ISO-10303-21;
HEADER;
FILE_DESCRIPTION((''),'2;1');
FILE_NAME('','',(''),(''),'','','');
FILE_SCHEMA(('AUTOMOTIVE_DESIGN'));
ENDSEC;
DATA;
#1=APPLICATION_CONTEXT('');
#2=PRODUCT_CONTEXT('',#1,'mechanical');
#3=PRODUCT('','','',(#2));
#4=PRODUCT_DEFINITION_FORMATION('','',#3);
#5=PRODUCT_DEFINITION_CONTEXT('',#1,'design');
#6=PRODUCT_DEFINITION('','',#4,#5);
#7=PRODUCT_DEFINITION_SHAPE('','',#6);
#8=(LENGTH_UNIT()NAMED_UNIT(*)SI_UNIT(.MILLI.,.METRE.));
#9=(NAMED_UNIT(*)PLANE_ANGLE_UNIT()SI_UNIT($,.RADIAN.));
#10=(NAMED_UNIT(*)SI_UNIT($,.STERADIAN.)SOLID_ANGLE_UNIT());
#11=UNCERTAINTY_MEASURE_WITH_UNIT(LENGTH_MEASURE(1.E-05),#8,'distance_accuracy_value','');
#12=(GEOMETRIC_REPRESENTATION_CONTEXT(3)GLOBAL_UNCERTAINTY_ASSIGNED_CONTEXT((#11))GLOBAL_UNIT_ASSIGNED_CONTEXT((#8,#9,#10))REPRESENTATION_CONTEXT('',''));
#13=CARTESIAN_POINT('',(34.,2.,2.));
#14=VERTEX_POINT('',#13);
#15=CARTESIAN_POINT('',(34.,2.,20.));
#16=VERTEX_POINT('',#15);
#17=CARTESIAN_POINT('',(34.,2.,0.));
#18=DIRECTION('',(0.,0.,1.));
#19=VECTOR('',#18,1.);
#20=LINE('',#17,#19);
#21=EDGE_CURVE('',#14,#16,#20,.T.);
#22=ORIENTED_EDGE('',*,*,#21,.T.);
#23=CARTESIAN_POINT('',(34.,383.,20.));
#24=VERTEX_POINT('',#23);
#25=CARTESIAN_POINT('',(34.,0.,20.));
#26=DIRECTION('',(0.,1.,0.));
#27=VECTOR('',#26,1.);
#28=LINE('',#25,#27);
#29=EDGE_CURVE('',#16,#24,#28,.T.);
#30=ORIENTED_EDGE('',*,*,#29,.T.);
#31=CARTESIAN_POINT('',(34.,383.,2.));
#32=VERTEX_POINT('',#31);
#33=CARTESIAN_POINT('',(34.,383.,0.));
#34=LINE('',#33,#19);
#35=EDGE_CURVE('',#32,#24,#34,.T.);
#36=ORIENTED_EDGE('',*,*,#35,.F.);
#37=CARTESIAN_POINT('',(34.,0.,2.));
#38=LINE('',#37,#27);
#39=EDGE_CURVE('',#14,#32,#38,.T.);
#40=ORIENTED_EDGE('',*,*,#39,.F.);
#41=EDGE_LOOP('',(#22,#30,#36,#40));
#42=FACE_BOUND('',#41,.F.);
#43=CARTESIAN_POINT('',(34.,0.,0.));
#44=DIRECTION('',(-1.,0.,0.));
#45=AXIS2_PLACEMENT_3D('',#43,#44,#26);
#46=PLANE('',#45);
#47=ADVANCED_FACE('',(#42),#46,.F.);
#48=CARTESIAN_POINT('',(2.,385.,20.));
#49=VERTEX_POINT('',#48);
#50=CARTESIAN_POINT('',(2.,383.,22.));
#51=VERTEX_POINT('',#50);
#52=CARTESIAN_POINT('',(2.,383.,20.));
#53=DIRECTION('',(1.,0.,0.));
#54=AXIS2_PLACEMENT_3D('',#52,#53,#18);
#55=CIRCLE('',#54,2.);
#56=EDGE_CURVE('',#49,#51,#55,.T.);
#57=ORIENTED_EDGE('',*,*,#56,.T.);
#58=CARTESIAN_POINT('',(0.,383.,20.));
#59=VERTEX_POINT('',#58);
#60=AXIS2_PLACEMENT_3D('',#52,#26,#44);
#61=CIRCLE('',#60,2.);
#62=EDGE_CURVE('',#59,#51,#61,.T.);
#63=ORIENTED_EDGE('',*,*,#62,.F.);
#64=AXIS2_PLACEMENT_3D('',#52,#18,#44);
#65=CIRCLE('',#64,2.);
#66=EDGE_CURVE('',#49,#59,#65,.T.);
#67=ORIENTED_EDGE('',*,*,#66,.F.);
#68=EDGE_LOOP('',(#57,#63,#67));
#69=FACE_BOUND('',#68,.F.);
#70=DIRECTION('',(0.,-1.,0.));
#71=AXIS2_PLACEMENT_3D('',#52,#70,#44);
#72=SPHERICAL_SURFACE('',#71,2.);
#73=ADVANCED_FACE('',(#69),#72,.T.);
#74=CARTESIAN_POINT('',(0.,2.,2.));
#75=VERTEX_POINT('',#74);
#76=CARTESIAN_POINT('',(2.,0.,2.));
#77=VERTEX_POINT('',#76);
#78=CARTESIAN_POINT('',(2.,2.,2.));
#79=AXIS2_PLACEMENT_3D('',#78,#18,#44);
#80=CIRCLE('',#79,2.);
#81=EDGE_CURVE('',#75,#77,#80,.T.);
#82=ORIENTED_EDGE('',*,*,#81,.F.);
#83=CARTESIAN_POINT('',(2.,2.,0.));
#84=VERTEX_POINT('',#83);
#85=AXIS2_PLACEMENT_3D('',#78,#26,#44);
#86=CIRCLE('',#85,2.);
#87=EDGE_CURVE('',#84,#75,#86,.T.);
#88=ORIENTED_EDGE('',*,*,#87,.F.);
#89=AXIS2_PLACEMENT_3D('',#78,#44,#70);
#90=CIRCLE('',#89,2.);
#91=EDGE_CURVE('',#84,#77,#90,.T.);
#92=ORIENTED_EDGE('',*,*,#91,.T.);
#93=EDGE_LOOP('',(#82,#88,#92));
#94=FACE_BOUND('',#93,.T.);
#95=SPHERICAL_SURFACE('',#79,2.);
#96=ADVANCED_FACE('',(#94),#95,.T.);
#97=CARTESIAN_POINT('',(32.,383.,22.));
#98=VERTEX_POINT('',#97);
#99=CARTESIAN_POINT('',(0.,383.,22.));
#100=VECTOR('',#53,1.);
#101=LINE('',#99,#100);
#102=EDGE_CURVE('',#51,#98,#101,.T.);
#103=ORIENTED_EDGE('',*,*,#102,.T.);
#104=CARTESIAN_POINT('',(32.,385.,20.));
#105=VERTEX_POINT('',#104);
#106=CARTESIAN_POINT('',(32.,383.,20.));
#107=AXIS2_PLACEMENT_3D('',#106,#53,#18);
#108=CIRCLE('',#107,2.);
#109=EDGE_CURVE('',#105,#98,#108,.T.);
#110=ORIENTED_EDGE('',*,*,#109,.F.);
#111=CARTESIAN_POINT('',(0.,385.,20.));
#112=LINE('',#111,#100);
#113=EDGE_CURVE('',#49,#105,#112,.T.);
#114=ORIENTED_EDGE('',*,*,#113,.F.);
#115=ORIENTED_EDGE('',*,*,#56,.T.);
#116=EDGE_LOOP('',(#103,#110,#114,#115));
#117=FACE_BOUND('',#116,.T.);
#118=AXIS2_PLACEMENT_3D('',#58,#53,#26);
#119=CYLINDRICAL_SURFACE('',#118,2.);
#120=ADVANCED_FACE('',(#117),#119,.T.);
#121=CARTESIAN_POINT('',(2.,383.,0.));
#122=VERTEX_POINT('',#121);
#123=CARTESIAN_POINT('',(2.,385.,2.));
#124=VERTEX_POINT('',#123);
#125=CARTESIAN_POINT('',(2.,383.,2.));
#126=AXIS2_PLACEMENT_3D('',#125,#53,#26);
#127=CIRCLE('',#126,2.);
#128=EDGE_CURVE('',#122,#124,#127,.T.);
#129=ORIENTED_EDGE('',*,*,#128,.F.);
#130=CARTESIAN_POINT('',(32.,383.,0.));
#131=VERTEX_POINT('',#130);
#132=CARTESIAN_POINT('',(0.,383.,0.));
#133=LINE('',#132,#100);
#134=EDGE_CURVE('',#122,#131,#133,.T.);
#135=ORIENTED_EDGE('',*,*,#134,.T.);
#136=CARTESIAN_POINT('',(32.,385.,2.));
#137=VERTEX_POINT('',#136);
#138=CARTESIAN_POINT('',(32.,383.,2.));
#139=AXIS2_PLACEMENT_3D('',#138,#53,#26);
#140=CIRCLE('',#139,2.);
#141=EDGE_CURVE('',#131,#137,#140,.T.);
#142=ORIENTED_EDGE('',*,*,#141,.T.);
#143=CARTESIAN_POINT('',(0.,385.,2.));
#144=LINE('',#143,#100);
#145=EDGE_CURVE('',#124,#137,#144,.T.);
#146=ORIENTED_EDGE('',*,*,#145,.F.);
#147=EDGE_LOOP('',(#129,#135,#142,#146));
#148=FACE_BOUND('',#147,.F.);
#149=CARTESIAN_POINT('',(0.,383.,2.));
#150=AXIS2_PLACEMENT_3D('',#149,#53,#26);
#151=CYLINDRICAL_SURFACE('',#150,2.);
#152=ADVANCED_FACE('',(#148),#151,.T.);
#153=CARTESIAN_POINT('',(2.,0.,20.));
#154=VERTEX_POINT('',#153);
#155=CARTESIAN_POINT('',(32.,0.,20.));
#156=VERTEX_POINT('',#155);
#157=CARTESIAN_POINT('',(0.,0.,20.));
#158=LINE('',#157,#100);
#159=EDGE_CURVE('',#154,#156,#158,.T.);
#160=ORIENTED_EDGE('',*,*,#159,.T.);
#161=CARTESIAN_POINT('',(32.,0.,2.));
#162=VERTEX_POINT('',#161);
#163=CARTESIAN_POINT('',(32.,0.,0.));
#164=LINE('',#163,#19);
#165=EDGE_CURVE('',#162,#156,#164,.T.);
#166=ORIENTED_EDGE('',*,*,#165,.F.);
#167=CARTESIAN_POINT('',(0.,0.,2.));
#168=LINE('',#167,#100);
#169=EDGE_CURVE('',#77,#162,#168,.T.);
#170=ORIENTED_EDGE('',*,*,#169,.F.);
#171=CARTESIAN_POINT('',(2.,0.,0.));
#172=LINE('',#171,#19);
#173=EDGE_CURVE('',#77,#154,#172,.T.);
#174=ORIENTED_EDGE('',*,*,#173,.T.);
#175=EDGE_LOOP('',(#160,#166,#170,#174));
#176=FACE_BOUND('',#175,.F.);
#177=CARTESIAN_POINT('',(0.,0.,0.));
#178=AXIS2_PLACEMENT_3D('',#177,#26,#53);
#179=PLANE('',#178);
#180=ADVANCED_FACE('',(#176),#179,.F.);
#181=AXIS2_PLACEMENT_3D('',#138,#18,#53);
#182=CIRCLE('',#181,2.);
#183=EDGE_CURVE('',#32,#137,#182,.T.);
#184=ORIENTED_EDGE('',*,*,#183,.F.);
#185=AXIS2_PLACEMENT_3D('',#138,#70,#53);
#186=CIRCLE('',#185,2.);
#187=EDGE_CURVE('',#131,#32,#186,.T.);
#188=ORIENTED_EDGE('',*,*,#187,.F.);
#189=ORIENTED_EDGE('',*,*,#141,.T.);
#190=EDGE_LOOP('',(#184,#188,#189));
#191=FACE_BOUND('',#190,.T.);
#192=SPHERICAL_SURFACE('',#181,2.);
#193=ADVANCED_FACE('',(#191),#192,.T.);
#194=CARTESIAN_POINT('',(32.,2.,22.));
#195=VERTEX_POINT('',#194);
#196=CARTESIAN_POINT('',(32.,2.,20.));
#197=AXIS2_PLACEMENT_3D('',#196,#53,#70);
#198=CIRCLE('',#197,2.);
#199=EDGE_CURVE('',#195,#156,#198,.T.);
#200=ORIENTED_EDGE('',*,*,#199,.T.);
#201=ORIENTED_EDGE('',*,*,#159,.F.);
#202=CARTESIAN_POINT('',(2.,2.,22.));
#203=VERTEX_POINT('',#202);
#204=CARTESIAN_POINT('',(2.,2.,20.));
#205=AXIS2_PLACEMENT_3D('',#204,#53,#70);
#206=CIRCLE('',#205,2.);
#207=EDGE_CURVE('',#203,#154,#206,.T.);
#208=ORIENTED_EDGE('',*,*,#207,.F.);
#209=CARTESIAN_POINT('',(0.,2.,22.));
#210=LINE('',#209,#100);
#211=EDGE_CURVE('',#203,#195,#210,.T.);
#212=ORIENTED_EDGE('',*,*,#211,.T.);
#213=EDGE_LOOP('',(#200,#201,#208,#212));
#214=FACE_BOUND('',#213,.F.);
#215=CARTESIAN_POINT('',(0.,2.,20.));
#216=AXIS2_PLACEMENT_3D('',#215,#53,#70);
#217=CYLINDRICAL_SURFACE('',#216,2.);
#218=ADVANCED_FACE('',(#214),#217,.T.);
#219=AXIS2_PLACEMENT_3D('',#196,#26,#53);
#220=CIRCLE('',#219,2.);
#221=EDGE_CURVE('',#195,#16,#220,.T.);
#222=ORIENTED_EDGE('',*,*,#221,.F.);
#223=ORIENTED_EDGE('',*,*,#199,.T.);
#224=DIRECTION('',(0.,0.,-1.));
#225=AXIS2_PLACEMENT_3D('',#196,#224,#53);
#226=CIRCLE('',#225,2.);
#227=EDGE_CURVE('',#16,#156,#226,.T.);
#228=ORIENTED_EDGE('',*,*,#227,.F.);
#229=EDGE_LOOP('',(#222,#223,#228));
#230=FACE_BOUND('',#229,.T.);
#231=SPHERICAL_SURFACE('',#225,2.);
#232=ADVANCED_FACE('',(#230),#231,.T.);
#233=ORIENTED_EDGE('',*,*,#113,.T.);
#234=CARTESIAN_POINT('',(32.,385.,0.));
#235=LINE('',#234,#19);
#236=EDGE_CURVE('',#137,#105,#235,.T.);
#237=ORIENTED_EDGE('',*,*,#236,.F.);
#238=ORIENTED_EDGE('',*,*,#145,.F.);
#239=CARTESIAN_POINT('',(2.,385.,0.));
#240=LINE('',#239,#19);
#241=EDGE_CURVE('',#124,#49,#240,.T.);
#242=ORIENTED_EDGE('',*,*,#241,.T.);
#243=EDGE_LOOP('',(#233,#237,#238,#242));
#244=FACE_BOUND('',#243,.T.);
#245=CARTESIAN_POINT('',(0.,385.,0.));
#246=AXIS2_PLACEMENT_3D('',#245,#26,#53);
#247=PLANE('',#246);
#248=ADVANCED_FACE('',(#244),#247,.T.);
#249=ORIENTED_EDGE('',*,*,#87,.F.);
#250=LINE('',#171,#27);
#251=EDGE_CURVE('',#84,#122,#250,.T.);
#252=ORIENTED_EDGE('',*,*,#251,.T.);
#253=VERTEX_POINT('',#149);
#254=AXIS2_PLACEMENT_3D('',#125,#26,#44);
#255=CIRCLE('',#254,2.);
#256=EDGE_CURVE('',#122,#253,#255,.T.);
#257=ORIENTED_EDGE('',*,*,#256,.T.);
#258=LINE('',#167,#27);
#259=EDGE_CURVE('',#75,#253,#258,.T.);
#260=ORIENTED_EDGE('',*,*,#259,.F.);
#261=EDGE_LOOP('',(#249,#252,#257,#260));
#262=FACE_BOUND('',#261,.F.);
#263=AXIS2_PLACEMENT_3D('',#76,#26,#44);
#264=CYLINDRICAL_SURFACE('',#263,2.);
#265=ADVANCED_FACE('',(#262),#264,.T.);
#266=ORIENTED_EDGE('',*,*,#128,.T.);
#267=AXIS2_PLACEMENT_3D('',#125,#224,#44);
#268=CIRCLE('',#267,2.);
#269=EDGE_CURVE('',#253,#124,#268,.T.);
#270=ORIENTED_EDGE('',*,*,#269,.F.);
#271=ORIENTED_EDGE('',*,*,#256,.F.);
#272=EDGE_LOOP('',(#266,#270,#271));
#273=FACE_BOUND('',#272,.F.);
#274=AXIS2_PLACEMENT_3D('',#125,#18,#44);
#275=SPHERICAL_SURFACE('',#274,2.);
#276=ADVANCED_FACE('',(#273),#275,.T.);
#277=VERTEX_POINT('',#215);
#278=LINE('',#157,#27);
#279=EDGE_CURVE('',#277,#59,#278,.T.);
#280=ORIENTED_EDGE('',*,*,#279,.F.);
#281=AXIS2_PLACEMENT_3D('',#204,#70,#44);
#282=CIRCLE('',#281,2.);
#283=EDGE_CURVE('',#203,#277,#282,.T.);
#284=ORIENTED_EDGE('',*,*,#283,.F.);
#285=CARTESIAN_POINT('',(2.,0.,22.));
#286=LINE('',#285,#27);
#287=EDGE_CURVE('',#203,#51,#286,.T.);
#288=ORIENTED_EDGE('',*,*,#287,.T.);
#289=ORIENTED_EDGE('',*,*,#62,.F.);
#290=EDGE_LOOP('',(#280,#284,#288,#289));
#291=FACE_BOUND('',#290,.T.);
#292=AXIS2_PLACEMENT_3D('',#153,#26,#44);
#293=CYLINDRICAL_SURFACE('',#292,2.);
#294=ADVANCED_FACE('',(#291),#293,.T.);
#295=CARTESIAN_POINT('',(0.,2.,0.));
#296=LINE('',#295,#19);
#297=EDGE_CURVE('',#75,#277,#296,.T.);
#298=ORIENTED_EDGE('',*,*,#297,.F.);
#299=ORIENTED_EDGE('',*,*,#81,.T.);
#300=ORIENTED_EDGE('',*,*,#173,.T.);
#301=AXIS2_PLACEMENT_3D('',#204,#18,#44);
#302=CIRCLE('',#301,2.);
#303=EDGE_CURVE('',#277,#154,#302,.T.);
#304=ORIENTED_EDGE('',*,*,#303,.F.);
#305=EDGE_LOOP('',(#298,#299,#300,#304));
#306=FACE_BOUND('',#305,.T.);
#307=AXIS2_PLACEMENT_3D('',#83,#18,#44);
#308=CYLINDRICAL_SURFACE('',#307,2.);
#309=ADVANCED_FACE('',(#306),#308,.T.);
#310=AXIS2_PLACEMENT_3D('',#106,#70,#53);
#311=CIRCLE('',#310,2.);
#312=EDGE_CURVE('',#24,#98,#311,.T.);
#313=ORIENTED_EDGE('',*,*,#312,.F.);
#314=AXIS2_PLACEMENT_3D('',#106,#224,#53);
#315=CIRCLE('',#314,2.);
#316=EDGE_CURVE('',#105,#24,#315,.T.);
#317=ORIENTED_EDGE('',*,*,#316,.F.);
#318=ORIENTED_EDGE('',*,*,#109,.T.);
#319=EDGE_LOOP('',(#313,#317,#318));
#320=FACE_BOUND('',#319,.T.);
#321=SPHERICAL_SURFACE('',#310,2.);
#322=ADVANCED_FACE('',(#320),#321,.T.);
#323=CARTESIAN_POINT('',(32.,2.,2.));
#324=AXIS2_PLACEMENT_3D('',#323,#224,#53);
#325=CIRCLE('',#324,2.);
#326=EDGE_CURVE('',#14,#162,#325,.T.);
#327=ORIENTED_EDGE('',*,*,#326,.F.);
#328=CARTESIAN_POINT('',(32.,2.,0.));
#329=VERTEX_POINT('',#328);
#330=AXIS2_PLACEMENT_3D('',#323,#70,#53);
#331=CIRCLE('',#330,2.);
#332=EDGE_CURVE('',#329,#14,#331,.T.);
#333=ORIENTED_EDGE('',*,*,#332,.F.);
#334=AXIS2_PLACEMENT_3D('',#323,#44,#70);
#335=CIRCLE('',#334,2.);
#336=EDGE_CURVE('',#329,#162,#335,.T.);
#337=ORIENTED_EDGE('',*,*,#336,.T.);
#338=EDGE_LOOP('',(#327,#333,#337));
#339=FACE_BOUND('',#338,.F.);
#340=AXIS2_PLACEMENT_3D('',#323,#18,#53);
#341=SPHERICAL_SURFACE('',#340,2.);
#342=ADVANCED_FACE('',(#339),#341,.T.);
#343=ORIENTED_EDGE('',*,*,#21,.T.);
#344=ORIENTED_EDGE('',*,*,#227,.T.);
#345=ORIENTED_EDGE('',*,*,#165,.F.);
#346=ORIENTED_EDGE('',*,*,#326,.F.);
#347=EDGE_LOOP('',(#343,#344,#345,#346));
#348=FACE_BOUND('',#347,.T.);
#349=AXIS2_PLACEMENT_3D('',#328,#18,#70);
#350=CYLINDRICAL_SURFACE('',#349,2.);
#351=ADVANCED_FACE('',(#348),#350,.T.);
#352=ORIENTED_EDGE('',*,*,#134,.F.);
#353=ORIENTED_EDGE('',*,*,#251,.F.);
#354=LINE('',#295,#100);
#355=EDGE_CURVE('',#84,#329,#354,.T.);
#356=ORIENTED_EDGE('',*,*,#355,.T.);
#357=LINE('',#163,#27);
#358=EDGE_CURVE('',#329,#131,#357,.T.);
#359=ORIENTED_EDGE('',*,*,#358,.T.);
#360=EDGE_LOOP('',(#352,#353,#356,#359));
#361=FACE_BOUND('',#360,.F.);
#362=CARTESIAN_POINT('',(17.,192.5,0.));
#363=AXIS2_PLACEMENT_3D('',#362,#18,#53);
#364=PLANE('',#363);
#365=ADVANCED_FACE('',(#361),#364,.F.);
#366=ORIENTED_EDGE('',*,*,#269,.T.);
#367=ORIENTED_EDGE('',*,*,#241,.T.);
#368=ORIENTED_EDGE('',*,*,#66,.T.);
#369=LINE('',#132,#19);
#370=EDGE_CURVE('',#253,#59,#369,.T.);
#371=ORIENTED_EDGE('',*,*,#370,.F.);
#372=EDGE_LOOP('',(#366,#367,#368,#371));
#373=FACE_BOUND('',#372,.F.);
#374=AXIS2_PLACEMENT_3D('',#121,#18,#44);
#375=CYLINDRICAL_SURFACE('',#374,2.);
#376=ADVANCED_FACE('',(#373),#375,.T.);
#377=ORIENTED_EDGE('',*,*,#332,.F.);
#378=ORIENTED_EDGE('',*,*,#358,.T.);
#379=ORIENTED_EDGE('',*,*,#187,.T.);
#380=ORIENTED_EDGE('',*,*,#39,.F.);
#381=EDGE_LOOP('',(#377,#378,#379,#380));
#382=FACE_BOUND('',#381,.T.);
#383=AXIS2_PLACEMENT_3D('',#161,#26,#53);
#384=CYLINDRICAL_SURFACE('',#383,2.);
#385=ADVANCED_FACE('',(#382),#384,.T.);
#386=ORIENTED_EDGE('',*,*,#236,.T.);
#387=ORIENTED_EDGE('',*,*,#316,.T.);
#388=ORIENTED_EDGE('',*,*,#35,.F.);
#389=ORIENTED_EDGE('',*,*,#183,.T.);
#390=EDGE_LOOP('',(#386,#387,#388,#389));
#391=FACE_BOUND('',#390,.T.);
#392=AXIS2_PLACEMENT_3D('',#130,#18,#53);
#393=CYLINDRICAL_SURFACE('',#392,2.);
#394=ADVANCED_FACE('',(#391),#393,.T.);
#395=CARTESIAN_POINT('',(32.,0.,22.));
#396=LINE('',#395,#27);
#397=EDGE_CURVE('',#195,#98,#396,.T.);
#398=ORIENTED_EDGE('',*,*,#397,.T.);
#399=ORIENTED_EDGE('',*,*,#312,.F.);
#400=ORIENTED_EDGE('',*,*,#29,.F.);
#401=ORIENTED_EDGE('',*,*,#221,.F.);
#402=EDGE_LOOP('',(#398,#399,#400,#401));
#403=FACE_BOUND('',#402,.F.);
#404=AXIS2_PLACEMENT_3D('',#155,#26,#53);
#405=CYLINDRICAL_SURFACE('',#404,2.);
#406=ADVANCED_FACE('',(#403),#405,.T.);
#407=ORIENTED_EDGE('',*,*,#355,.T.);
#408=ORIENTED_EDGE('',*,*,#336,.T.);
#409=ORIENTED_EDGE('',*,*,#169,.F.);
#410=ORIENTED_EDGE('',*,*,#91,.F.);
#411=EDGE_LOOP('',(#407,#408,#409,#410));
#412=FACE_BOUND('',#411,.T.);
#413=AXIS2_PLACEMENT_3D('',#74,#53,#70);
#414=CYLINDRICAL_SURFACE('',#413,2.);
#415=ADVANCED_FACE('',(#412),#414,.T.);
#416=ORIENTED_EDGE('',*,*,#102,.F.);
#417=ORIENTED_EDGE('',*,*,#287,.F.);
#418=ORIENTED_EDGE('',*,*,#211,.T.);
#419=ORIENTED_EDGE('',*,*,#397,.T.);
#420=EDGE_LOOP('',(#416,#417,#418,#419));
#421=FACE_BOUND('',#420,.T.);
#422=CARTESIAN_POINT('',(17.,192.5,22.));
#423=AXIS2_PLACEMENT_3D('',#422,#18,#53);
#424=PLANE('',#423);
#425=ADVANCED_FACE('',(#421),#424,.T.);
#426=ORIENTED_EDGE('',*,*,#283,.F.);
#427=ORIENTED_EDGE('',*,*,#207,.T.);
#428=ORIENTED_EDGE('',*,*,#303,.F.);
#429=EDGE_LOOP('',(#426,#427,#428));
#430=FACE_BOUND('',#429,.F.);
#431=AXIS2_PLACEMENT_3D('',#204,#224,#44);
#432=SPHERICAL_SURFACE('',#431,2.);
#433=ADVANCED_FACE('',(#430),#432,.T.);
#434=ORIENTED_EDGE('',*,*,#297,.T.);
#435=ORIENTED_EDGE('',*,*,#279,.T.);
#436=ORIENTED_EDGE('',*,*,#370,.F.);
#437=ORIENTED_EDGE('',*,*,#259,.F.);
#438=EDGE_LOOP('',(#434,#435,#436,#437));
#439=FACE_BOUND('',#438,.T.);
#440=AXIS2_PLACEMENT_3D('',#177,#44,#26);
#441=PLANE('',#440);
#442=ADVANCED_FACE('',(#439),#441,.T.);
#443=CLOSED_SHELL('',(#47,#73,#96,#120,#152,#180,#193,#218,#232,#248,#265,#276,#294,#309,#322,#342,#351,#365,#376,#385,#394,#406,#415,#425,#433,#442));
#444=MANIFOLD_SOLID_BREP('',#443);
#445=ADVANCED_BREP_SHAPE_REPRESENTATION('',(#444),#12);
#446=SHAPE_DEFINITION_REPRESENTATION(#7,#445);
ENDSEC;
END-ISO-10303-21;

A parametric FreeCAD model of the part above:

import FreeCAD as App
import Part
import Sketcher
Q = App.Units.Quantity


def add_polygon(sketch, points):
    """Adds a closed chain of lines whose ends are joined by coincident constraints."""
    first, n = sketch.GeometryCount, len(points)
    for a, b in zip(points, points[1:] + points[:1]):
        sketch.addGeometry(Part.LineSegment(App.Vector(*a, 0), App.Vector(*b, 0)), False)
    for i in range(n):
        sketch.addConstraint(Sketcher.Constraint("Coincident", first + i, 2, first + (i + 1) % n, 1))

doc = App.newDocument("Part")
params = doc.addObject("Spreadsheet::Sheet", "Params")
for row, (alias, value) in enumerate([
    ("sketch1_width", "34 mm"),
    ("sketch1_height", "385 mm"),
    ("pad1_length", "22 mm"),
    ("fillet_radius", "2 mm"),
], start=1):
    params.set(f"A{row}", alias)
    params.set(f"B{row}", "=" + value)
    params.setAlias(f"B{row}", alias)

body = doc.addObject("PartDesign::Body", "Body")

sketch1 = body.newObject("Sketcher::SketchObject", "Sketch")
sketch1.AttachmentSupport = (doc.getObject("XY_Plane"), [""])
sketch1.MapMode = "FlatFace"
add_polygon(sketch1, [(0, 385), (0, 0), (34, 0), (34, 385)])
sketch1.addConstraint([
    Sketcher.Constraint("Vertical", 0),
    Sketcher.Constraint("Horizontal", 1),
    Sketcher.Constraint("Vertical", 2),
    Sketcher.Constraint("Horizontal", 3),
    Sketcher.Constraint("Coincident", 0, 2, -1, 1),
    Sketcher.Constraint("DistanceX", 1, 1, 1, 2, Q("34 mm")),
    Sketcher.Constraint("DistanceY", 0, 2, 0, 1, Q("385 mm")),
])
sketch1.setExpression("Constraints[9]", "Params.sketch1_width")
sketch1.setExpression("Constraints[10]", "Params.sketch1_height")
pad1 = body.newObject("PartDesign::Pad", "Pad")
pad1.Profile = sketch1
pad1.setExpression("Length", "Params.pad1_length")
doc.recompute()

fillet = body.newObject("PartDesign::Fillet", "Fillet")
fillet.Base = (pad1, ["Edge1"])
fillet.UseAllEdges = True
fillet.setExpression("Radius", "Params.fillet_radius")

doc.recompute()
